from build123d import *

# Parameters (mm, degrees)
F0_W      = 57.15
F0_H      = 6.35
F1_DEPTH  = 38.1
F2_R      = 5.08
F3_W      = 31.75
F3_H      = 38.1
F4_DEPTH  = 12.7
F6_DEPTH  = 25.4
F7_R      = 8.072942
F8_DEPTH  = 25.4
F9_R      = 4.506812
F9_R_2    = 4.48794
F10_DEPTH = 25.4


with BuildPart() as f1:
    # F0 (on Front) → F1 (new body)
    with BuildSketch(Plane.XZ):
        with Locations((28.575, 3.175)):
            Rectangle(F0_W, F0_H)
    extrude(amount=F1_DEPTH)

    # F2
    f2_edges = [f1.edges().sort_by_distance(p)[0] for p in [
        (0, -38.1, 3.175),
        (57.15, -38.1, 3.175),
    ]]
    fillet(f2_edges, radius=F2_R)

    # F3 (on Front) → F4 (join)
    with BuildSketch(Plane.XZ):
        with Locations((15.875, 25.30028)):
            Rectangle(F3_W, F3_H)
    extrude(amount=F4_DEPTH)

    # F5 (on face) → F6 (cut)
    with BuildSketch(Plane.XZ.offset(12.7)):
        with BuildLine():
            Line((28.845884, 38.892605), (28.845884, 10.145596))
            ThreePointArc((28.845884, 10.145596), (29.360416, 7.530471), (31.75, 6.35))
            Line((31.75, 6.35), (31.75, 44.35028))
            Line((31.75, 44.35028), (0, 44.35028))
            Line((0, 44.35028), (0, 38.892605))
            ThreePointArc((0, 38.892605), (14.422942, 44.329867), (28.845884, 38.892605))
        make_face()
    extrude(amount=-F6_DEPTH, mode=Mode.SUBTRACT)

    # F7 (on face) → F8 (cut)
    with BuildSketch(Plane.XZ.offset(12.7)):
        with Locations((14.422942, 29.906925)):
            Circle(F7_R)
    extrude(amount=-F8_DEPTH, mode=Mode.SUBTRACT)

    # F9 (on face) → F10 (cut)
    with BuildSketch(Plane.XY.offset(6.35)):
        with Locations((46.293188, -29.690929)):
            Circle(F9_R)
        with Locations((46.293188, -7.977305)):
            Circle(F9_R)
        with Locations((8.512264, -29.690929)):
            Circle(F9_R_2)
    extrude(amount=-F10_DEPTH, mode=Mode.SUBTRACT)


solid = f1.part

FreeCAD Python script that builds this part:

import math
import FreeCAD as App
import Part
import Sketcher
Q = App.Units.Quantity


def edges_at(feature, points):
    """Names of the edges that pass closest to the given points."""
    edges = feature.Shape.Edges
    near = lambda p: min(range(len(edges)), key=lambda i: edges[i].distToShape(Part.Vertex(*p))[0])
    return sorted({f"Edge{near(p) + 1}" for p in points})

doc = App.newDocument("Part")
body = doc.addObject("PartDesign::Body", "Body")

sketch1 = body.newObject("Sketcher::SketchObject", "Sketch")
sketch1.AttachmentSupport = (doc.getObject("XZ_Plane"), [""])
sketch1.MapMode = "FlatFace"
sketch1.addGeometry([
    Part.LineSegment(App.Vector(0, 6, 0), App.Vector(0, 0, 0)),
    Part.LineSegment(App.Vector(0, 0, 0), App.Vector(57, 0, 0)),
    Part.LineSegment(App.Vector(57, 0, 0), App.Vector(57, 6, 0)),
    Part.LineSegment(App.Vector(57, 6, 0), App.Vector(0, 6, 0)),
], False)
sketch1.addConstraint([
    Sketcher.Constraint("Coincident", 0, 2, 1, 1),
    Sketcher.Constraint("Coincident", 1, 2, 2, 1),
    Sketcher.Constraint("Coincident", 2, 2, 3, 1),
    Sketcher.Constraint("Coincident", 3, 2, 0, 1),
    Sketcher.Constraint("Vertical", 0),
    Sketcher.Constraint("Horizontal", 1),
    Sketcher.Constraint("Vertical", 2),
    Sketcher.Constraint("Horizontal", 3),
    Sketcher.Constraint("Coincident", 0, 2, -1, 1),
    Sketcher.Constraint("DistanceX", 1, 1, 1, 2, Q("2.25 in")),
    Sketcher.Constraint("DistanceY", 0, 2, 0, 1, Q("0.25 in")),
])
pad1 = body.newObject("PartDesign::Pad", "Pad")
pad1.Profile = sketch1
pad1.Length = Q("1.5 in")
doc.recompute()

fillet = body.newObject("PartDesign::Fillet", "Fillet")
fillet.Base = (pad1, edges_at(pad1, [(0, -38.1, 3.175), (57.15, -38.1, 3.175)]))
fillet.Radius = Q("0.2 in")

sketch2 = body.newObject("Sketcher::SketchObject", "Sketch001")
sketch2.AttachmentSupport = (doc.getObject("XZ_Plane"), [""])
sketch2.MapMode = "FlatFace"
sketch2.addGeometry([
    Part.LineSegment(App.Vector(0, 44, 0), App.Vector(0, 6, 0)),
    Part.LineSegment(App.Vector(0, 6, 0), App.Vector(32, 6, 0)),
    Part.LineSegment(App.Vector(32, 6, 0), App.Vector(32, 44, 0)),
    Part.LineSegment(App.Vector(32, 44, 0), App.Vector(0, 44, 0)),
], False)
sketch2.addConstraint([
    Sketcher.Constraint("Coincident", 0, 2, 1, 1),
    Sketcher.Constraint("Coincident", 1, 2, 2, 1),
    Sketcher.Constraint("Coincident", 2, 2, 3, 1),
    Sketcher.Constraint("Coincident", 3, 2, 0, 1),
    Sketcher.Constraint("Vertical", 0),
    Sketcher.Constraint("Horizontal", 1),
    Sketcher.Constraint("Vertical", 2),
    Sketcher.Constraint("Horizontal", 3),
    Sketcher.Constraint("PointOnObject", 0, 2, -2),
    Sketcher.Constraint("DistanceY", 0, 2, 0, 1, Q("1.5 in")),
    Sketcher.Constraint("DistanceX", 1, 1, 1, 2, Q("1.25 in")),
    Sketcher.Constraint("DistanceY", -1, 1, 0, 2, Q("6.25028 mm")),
])
pad2 = body.newObject("PartDesign::Pad", "Pad001")
pad2.Profile = sketch2
pad2.Length = Q("0.5 in")

sketch3 = body.newObject("Sketcher::SketchObject", "Sketch002")
sketch3.AttachmentSupport = (doc.getObject("XZ_Plane"), [""])
sketch3.MapMode = "FlatFace"
sketch3.AttachmentOffset = App.Placement(App.Vector(0, 0, 0.5 * 25.4), App.Rotation())
sketch3.addGeometry([
    Part.LineSegment(App.Vector(28.8, 38.9, 0), App.Vector(28.8, 10.1, 0)),
    Part.ArcOfCircle(Part.Circle(App.Vector(31.7, 9.4, 0), App.Vector(0, 0, 1), 3), math.radians(165), math.radians(270)),
    Part.LineSegment(App.Vector(31.8, 6.3, 0), App.Vector(31.8, 44.4, 0)),
    Part.LineSegment(App.Vector(31.8, 44.4, 0), App.Vector(0, 44.4, 0)),
    Part.LineSegment(App.Vector(0, 44.4, 0), App.Vector(0, 38.9, 0)),
    Part.ArcOfCircle(Part.Circle(App.Vector(14.4, 22.5, 0), App.Vector(0, 0, 1), 21.8), math.radians(49), math.radians(131)),
], False)
sketch3.addConstraint([
    Sketcher.Constraint("Coincident", 0, 2, 1, 1),
    Sketcher.Constraint("Coincident", 1, 2, 2, 1),
    Sketcher.Constraint("Coincident", 2, 2, 3, 1),
    Sketcher.Constraint("Coincident", 3, 2, 4, 1),
    Sketcher.Constraint("Coincident", 4, 2, 5, 2),
    Sketcher.Constraint("Coincident", 5, 1, 0, 1),
    Sketcher.Constraint("Vertical", 0),
    Sketcher.Constraint("Vertical", 2),
    Sketcher.Constraint("Horizontal", 3),
    Sketcher.Constraint("Vertical", 4),
    Sketcher.Constraint("PointOnObject", 3, 2, -2),
    Sketcher.Constraint("Horizontal", 4, 2, 5, 1),
    Sketcher.Constraint("DistanceX", 3, 2, 3, 1, Q("1.25 in")),
    Sketcher.Constraint("DistanceX", -1, 1, 1, 3, Q("1.25 in")),
    Sketcher.Constraint("DistanceY", -1, 1, 1, 2, Q("0.25 in")),
    Sketcher.Constraint("Radius", 5, Q("21.84786 mm")),
    Sketcher.Constraint("Radius", 1, Q("3.008807 mm")),
    Sketcher.Constraint("DistanceY", 0, 2, 0, 1, Q("28.747009 mm")),
    Sketcher.Constraint("DistanceY", 2, 1, 2, 2, Q("38.00028 mm")),
    Sketcher.Constraint("DistanceY", 1, 3, 5, 3, Q("13.1232 mm")),
])
pocket1 = body.newObject("PartDesign::Pocket", "Pocket")
pocket1.Profile = sketch3
pocket1.Length = Q("1 in")

sketch4 = body.newObject("Sketcher::SketchObject", "Sketch003")
sketch4.AttachmentSupport = (doc.getObject("XZ_Plane"), [""])
sketch4.MapMode = "FlatFace"
sketch4.AttachmentOffset = App.Placement(App.Vector(0, 0, 0.5 * 25.4), App.Rotation())
sketch4.addGeometry(Part.Circle(App.Vector(14, 30, 0), App.Vector(0, 0, 1), 8), False)
sketch4.addConstraint([
    Sketcher.Constraint("Diameter", 0, Q("16.145884 mm")),
    Sketcher.Constraint("DistanceX", -1, 1, 0, 3, Q("14.422942 mm")),
    Sketcher.Constraint("DistanceY", -1, 1, 0, 3, Q("29.906925 mm")),
])
pocket2 = body.newObject("PartDesign::Pocket", "Pocket001")
pocket2.Profile = sketch4
pocket2.Length = Q("1 in")

sketch5 = body.newObject("Sketcher::SketchObject", "Sketch004")
sketch5.AttachmentSupport = (doc.getObject("XY_Plane"), [""])
sketch5.MapMode = "FlatFace"
sketch5.AttachmentOffset = App.Placement(App.Vector(0, 0, 0.25 * 25.4), App.Rotation())
sketch5.addGeometry([
    Part.Circle(App.Vector(46.3, -29.7, 0), App.Vector(0, 0, 1), 4.5),
    Part.Circle(App.Vector(46.3, -8, 0), App.Vector(0, 0, 1), 4.5),
    Part.Circle(App.Vector(8.5, -29.7, 0), App.Vector(0, 0, 1), 4.5),
], False)
sketch5.addConstraint([
    Sketcher.Constraint("Equal", 0, 1),
    Sketcher.Constraint("Horizontal", 0, 3, 2, 3),
    Sketcher.Constraint("Vertical", 0, 3, 1, 3),
    Sketcher.Constraint("Diameter", 2, Q("8.97588 mm")),
    Sketcher.Constraint("Diameter", 0, Q("9.013624 mm")),
    Sketcher.Constraint("DistanceY", 0, 3, -1, 1, Q("29.690929 mm")),
    Sketcher.Constraint("DistanceX", -1, 1, 0, 3, Q("46.293188 mm")),
    Sketcher.Constraint("DistanceY", 1, 3, -1, 1, Q("7.977305 mm")),
    Sketcher.Constraint("DistanceX", -1, 1, 2, 3, Q("8.512264 mm")),
])
pocket3 = body.newObject("PartDesign::Pocket", "Pocket002")
pocket3.Profile = sketch5
pocket3.Length = Q("1 in")

doc.recompute()
